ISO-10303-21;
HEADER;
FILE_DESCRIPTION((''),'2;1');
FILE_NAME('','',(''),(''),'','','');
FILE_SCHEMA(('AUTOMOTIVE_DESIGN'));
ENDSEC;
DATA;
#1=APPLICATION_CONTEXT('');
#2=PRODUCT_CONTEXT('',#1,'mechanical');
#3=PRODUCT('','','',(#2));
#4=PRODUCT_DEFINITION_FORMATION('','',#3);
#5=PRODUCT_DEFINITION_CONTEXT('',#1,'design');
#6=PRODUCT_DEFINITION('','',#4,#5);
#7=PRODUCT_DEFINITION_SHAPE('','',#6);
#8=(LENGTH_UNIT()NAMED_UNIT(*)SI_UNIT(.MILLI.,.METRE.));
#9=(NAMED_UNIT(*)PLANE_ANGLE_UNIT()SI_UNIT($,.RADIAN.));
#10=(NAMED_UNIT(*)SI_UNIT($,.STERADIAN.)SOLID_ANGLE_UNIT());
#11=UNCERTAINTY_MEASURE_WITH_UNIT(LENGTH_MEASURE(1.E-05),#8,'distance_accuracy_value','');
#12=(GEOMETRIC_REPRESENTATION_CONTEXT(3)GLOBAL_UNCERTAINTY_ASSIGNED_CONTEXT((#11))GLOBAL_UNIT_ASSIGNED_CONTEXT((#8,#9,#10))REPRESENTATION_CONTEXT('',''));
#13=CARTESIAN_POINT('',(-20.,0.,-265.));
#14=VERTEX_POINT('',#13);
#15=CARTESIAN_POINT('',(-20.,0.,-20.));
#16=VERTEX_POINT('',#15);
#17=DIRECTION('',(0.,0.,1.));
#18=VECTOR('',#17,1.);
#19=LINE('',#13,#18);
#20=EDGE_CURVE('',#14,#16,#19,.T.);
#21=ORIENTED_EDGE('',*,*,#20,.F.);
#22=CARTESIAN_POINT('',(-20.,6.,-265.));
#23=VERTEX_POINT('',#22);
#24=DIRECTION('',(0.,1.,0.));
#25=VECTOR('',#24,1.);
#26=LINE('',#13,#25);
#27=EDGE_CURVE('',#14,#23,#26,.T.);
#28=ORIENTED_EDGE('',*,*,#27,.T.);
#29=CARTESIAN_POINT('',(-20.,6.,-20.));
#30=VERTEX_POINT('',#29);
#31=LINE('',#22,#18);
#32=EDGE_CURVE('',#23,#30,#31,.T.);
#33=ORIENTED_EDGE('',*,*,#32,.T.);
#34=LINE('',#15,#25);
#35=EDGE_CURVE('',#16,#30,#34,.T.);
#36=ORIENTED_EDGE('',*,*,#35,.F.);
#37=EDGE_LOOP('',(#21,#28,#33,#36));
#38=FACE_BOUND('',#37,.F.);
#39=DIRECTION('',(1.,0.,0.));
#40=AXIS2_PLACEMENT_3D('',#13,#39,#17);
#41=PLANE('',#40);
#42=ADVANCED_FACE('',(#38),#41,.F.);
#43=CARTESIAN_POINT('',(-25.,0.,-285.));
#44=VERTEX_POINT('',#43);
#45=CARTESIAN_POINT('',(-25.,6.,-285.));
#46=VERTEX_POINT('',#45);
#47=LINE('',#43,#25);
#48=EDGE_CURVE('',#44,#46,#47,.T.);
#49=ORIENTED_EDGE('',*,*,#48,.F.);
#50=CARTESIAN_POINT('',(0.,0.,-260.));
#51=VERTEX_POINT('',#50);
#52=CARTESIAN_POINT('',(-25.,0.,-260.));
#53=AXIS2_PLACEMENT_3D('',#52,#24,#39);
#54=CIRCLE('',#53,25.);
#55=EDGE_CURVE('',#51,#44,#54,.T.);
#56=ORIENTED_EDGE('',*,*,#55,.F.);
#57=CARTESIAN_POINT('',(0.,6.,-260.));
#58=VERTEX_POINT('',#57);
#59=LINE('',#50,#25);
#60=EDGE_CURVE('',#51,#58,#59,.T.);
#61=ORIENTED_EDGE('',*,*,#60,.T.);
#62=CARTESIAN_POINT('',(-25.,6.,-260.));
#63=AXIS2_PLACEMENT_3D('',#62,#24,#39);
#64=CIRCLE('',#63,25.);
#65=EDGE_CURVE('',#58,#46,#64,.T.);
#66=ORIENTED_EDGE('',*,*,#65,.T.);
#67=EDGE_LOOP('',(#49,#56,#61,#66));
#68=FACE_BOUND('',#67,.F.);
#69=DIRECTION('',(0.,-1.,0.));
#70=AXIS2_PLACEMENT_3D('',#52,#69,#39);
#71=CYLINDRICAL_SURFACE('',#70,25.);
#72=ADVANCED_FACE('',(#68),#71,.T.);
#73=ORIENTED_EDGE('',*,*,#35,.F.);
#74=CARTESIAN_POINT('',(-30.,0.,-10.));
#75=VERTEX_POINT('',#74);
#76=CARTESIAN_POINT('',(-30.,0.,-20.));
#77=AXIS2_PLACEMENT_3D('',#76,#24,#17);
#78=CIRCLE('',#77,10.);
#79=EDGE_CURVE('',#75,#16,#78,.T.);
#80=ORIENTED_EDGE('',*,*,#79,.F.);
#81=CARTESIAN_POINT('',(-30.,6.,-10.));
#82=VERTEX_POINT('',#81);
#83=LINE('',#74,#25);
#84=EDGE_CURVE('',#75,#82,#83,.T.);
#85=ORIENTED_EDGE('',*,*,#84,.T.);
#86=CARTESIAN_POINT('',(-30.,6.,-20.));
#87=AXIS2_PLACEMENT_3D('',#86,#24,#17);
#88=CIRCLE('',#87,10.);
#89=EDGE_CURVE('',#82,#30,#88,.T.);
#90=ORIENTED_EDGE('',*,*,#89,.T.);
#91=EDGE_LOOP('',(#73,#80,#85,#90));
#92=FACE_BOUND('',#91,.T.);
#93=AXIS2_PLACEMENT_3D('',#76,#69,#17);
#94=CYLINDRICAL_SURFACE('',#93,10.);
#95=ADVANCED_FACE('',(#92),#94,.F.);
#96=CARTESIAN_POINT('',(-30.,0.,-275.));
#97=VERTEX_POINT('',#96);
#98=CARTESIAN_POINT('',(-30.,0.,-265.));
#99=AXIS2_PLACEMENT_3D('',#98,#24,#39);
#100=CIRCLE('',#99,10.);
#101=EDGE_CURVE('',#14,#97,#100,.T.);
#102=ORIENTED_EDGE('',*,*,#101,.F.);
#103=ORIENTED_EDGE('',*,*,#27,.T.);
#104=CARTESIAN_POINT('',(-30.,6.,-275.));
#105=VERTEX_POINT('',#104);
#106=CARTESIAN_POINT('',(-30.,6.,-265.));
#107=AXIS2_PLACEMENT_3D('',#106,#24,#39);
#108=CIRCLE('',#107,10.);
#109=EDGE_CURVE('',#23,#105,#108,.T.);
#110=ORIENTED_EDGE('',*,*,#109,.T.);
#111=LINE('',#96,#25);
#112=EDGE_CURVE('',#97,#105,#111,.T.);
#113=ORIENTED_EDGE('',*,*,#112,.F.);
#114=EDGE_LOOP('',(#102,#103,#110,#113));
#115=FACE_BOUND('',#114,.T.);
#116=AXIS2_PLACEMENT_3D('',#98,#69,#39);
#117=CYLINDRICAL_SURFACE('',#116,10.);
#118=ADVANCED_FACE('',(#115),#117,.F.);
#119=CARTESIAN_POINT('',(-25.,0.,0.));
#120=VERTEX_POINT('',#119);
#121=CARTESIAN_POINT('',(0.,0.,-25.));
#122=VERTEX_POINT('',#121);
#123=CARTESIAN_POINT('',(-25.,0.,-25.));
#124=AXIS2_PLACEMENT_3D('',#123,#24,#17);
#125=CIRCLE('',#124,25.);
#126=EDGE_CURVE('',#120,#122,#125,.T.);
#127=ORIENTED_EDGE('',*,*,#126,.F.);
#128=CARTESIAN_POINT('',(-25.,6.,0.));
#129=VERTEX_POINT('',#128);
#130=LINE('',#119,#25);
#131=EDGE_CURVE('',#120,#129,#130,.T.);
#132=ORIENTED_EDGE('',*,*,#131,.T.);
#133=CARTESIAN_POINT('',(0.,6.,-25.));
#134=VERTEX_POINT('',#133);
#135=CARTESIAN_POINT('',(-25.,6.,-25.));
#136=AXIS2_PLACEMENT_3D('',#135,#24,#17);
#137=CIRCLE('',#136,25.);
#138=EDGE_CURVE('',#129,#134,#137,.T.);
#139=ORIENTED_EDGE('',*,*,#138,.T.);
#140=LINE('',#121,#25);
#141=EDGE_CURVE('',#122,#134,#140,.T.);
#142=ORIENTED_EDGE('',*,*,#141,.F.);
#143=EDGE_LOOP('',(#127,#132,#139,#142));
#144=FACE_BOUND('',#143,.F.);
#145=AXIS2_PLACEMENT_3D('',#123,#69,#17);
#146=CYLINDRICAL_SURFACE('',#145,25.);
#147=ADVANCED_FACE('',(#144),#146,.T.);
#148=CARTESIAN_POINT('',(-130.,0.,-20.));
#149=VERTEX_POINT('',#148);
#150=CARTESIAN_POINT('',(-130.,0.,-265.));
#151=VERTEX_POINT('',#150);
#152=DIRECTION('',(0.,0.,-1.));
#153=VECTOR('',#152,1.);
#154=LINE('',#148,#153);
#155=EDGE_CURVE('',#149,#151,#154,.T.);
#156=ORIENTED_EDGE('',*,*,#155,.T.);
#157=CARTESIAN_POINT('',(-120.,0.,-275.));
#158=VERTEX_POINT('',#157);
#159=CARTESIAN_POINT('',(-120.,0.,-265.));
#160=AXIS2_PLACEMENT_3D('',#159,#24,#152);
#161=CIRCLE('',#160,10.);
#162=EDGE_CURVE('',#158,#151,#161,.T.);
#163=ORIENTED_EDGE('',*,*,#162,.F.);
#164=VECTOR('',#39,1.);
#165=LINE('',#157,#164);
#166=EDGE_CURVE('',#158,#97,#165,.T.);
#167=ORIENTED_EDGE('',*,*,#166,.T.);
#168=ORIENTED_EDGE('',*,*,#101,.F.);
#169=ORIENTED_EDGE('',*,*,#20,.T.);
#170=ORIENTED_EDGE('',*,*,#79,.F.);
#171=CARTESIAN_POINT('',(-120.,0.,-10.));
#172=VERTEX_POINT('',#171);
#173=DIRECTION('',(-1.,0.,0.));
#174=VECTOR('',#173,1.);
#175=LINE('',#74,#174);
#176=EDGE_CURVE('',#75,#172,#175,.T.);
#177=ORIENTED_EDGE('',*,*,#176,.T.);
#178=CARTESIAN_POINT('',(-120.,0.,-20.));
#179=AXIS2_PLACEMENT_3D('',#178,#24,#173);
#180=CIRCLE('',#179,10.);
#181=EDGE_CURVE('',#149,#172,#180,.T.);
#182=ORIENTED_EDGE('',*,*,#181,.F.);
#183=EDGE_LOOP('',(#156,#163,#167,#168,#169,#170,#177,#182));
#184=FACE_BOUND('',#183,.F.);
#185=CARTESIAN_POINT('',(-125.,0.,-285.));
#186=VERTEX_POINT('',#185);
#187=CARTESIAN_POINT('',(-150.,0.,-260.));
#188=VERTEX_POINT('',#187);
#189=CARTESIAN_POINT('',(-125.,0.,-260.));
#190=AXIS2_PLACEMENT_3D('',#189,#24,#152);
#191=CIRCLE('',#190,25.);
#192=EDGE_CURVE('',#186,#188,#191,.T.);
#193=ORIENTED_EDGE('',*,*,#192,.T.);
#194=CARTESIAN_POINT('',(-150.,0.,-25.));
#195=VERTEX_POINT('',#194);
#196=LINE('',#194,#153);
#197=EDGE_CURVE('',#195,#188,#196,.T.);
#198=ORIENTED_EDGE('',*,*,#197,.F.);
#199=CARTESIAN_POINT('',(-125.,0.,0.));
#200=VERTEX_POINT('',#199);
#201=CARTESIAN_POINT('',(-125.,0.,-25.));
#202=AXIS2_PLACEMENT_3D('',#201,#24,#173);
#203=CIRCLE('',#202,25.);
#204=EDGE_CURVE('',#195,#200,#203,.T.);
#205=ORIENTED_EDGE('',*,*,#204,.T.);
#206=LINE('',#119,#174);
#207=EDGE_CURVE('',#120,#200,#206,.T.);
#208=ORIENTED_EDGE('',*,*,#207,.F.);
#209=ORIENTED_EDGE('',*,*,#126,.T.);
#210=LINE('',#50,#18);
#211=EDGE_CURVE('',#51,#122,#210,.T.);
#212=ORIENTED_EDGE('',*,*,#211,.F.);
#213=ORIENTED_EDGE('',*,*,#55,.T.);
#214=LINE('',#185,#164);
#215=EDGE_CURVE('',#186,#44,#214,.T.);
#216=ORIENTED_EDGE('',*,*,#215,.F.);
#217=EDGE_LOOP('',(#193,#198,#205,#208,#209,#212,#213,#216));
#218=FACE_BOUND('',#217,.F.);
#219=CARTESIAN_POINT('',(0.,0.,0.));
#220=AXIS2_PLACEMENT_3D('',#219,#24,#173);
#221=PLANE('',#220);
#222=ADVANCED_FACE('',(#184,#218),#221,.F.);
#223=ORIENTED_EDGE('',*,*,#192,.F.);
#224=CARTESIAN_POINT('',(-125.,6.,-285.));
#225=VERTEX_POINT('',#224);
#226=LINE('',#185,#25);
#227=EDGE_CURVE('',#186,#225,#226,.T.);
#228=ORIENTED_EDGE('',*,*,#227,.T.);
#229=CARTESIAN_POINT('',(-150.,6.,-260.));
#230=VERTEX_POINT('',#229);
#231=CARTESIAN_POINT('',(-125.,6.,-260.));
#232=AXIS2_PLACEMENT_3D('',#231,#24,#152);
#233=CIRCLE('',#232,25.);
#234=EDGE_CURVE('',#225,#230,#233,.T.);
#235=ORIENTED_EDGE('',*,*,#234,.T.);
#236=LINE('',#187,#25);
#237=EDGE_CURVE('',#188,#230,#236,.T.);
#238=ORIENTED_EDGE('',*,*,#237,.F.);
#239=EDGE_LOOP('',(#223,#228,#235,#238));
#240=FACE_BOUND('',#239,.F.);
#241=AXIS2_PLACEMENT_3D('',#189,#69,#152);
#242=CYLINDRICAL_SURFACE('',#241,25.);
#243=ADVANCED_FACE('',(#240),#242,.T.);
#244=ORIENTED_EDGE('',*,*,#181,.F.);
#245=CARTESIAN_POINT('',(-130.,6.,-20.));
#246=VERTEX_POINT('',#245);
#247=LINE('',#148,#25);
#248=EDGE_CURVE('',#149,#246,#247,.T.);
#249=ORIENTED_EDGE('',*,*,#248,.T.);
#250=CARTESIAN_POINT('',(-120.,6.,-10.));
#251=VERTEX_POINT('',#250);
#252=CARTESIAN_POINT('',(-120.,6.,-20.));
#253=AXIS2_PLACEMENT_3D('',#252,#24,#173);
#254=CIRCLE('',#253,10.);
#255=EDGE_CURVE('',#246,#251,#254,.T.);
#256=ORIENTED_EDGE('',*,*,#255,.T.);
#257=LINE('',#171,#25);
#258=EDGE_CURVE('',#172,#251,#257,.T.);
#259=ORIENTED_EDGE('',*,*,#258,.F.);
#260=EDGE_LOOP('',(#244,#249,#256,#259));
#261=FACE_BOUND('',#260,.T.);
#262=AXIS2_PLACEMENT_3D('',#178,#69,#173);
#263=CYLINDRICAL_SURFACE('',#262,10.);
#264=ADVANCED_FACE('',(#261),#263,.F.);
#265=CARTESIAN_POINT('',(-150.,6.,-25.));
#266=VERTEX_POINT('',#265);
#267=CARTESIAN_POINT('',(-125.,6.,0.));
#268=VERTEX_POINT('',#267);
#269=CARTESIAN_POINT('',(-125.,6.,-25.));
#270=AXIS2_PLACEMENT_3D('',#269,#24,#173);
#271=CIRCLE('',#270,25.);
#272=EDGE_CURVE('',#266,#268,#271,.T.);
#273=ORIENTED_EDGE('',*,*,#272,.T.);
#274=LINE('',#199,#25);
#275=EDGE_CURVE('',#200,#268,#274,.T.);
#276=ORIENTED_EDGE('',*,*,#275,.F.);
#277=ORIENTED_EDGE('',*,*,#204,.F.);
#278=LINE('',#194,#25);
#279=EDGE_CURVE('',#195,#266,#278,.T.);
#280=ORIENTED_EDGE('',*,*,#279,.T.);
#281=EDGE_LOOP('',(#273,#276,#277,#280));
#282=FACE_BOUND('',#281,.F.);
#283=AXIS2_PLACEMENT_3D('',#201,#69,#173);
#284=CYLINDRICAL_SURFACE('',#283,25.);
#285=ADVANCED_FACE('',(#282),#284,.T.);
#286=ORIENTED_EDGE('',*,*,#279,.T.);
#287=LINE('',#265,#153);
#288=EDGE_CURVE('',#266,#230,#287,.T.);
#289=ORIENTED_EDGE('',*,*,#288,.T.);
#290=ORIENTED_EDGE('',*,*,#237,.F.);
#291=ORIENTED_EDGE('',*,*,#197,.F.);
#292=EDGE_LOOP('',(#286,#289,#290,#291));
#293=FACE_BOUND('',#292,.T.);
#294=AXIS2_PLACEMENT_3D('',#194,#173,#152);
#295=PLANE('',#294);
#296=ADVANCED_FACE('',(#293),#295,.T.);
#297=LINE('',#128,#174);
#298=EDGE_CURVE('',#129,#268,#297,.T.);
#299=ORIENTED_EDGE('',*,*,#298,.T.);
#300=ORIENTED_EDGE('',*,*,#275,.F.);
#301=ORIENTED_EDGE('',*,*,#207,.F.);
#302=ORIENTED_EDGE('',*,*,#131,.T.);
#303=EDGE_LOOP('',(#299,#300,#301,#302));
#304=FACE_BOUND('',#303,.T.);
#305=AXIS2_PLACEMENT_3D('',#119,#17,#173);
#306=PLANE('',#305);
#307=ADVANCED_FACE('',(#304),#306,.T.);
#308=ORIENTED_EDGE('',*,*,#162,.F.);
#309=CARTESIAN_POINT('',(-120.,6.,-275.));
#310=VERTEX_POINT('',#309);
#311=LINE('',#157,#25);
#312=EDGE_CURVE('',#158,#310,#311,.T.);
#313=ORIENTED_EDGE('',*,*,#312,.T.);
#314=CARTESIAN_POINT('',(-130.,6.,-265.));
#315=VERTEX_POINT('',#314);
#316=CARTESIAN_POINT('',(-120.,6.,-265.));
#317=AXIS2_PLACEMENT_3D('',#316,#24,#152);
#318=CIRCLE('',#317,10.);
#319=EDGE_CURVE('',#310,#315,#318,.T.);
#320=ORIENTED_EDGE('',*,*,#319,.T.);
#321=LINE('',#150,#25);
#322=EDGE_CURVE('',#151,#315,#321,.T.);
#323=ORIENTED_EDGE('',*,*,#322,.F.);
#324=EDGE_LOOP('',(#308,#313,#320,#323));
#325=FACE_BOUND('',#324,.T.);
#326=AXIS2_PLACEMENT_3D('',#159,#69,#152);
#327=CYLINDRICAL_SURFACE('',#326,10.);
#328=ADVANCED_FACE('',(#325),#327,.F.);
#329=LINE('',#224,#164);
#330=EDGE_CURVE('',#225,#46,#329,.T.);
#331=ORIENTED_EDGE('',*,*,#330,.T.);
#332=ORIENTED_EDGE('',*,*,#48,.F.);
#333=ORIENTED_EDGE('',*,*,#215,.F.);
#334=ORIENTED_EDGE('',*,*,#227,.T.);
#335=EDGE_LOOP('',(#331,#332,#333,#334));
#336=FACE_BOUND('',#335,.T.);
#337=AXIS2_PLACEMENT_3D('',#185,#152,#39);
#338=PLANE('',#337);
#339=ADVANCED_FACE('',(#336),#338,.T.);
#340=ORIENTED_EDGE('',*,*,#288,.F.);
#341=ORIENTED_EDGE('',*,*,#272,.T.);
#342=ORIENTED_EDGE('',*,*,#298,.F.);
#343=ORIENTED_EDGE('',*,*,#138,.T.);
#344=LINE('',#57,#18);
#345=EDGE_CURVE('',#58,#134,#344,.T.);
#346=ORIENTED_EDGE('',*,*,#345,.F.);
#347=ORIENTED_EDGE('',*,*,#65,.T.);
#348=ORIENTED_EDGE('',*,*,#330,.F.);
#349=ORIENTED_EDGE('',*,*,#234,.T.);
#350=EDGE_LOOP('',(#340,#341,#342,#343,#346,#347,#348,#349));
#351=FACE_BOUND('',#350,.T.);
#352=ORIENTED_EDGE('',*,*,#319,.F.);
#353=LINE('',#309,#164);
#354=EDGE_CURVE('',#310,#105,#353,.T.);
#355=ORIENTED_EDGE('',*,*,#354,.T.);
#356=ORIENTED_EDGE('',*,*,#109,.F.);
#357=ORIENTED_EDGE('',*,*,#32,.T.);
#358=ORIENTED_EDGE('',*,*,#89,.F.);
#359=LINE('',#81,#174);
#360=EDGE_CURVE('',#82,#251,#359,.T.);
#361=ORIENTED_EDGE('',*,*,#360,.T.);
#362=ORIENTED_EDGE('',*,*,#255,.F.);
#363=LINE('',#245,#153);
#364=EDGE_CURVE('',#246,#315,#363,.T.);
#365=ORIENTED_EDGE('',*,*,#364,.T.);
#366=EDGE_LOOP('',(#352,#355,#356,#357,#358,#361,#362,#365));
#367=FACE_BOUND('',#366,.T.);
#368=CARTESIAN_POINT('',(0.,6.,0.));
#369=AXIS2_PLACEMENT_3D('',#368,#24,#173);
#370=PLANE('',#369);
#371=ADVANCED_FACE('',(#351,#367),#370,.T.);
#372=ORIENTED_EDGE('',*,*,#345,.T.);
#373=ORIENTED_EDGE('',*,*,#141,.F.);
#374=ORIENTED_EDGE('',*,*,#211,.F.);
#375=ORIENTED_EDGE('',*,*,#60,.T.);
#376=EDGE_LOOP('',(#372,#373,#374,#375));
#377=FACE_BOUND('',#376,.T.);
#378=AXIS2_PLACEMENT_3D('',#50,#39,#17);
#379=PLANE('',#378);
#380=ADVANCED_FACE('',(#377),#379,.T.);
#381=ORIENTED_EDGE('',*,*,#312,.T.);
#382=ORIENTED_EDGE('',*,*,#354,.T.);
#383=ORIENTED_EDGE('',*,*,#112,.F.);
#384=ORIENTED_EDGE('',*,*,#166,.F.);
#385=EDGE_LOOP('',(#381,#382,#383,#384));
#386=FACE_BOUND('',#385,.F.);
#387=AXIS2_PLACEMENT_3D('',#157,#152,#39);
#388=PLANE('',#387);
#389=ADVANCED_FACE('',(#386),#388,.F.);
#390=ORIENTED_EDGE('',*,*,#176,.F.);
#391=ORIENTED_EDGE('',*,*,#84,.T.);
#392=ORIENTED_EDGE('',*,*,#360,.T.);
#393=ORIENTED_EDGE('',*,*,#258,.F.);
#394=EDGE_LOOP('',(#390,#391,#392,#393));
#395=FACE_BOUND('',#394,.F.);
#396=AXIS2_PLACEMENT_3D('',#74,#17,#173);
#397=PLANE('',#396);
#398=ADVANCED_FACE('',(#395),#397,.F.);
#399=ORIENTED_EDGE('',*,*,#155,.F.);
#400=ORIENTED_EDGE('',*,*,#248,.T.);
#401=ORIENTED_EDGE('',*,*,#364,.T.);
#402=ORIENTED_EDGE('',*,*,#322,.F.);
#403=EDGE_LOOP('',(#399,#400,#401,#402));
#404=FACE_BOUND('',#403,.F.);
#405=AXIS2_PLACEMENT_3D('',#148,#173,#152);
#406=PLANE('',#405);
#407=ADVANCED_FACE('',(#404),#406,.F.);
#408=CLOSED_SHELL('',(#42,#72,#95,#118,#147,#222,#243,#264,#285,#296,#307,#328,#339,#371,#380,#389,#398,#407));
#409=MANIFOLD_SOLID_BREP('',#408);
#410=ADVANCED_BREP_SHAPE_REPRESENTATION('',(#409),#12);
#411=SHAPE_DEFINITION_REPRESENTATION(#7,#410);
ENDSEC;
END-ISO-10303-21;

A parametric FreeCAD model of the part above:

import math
import FreeCAD as App
import Part
import Sketcher

V = App.Vector

doc = App.newDocument("Part")
body = doc.addObject("PartDesign::Body", "Body")

# Sketch on XZ plane
sketch1 = body.newObject("Sketcher::SketchObject", "Sketch")
sketch1.AttachmentSupport = (doc.getObject("XZ_Plane"), [""])
sketch1.MapMode = "FlatFace"
sketch1.addGeometry([
    Part.LineSegment(V(-125, 0, 0), V(-25, 0, 0)),  # 0
    Part.ArcOfCircle(Part.Circle(V(-25, -25, 0), V(0, 0, 1), 25), math.radians(0), math.radians(90)),  # 1
    Part.LineSegment(V(0, -25, 0), V(0, -260, 0)),  # 2
    Part.ArcOfCircle(Part.Circle(V(-25, -260, 0), V(0, 0, 1), 25), math.radians(-90), math.radians(0)),  # 3
    Part.LineSegment(V(-25, -285, 0), V(-125, -285, 0)),  # 4
    Part.ArcOfCircle(Part.Circle(V(-125, -260, 0), V(0, 0, 1), 25), math.radians(180), math.radians(270)),  # 5
    Part.LineSegment(V(-150, -260, 0), V(-150, -25, 0)),  # 6
    Part.ArcOfCircle(Part.Circle(V(-125, -25, 0), V(0, 0, 1), 25), math.radians(90), math.radians(180)),  # 7
    Part.ArcOfCircle(Part.Circle(V(-30, -20, 0), V(0, 0, 1), 10), math.radians(0), math.radians(90)),  # 8
    Part.LineSegment(V(-30, -10, 0), V(-120, -10, 0)),  # 9
    Part.ArcOfCircle(Part.Circle(V(-120, -20, 0), V(0, 0, 1), 10), math.radians(90), math.radians(180)),  # 10
    Part.LineSegment(V(-130, -20, 0), V(-130, -265, 0)),  # 11
    Part.ArcOfCircle(Part.Circle(V(-120, -265, 0), V(0, 0, 1), 10), math.radians(180), math.radians(270)),  # 12
    Part.LineSegment(V(-120, -275, 0), V(-30, -275, 0)),  # 13
    Part.ArcOfCircle(Part.Circle(V(-30, -265, 0), V(0, 0, 1), 10), math.radians(-90), math.radians(0)),  # 14
    Part.LineSegment(V(-20, -265, 0), V(-20, -20, 0)),  # 15
], False)
sketch1.addConstraint([
    Sketcher.Constraint("Tangent", 0, 2, 1, 2),
    Sketcher.Constraint("Tangent", 1, 1, 2, 1),
    Sketcher.Constraint("Tangent", 2, 2, 3, 2),
    Sketcher.Constraint("Tangent", 3, 1, 4, 1),
    Sketcher.Constraint("Tangent", 4, 2, 5, 2),
    Sketcher.Constraint("Tangent", 5, 1, 6, 1),
    Sketcher.Constraint("Tangent", 6, 2, 7, 2),
    Sketcher.Constraint("Tangent", 7, 1, 0, 1),
    Sketcher.Constraint("Tangent", 8, 2, 9, 1),
    Sketcher.Constraint("Tangent", 9, 2, 10, 1),
    Sketcher.Constraint("Tangent", 10, 2, 11, 1),
    Sketcher.Constraint("Tangent", 11, 2, 12, 1),
    Sketcher.Constraint("Tangent", 12, 2, 13, 1),
    Sketcher.Constraint("Tangent", 13, 2, 14, 1),
    Sketcher.Constraint("Tangent", 14, 2, 15, 1),
    Sketcher.Constraint("Tangent", 15, 2, 8, 1),
    Sketcher.Constraint("Horizontal", 0),
    Sketcher.Constraint("Vertical", 2),
    Sketcher.Constraint("Horizontal", 4),
    Sketcher.Constraint("Vertical", 6),
    Sketcher.Constraint("Horizontal", 9),
    Sketcher.Constraint("Vertical", 11),
    Sketcher.Constraint("Horizontal", 13),
    Sketcher.Constraint("Vertical", 15),
    Sketcher.Constraint("Equal", 1, 3),
    Sketcher.Constraint("Equal", 3, 5),
    Sketcher.Constraint("Equal", 5, 7),
    Sketcher.Constraint("Equal", 8, 10),
    Sketcher.Constraint("Equal", 10, 12),
    Sketcher.Constraint("Equal", 12, 14),
    Sketcher.Constraint("PointOnObject", 0, 2, -1),
    Sketcher.Constraint("PointOnObject", 1, 1, -2),
    Sketcher.Constraint("Radius", 1, 25.0),
    Sketcher.Constraint("Radius", 8, 10.0),
    Sketcher.Constraint("DistanceY", 8, 3, -1, 1, 20.0),
    Sketcher.Constraint("DistanceY", 12, 3, -1, 1, 265.0),
    Sketcher.Constraint("DistanceX", 5, 1, -1, 1, 150.0),
    Sketcher.Constraint("DistanceX", 14, 2, -1, 1, 20.0),
    Sketcher.Constraint("DistanceY", 3, 1, 14, 3, 20.0),
    Sketcher.Constraint("DistanceX", 6, 2, 10, 2, 20.0),
])
pad1 = body.newObject("PartDesign::Pad", "Pad")
pad1.Profile = sketch1
pad1.Length = 6
pad1.Reversed = True

doc.recompute()
